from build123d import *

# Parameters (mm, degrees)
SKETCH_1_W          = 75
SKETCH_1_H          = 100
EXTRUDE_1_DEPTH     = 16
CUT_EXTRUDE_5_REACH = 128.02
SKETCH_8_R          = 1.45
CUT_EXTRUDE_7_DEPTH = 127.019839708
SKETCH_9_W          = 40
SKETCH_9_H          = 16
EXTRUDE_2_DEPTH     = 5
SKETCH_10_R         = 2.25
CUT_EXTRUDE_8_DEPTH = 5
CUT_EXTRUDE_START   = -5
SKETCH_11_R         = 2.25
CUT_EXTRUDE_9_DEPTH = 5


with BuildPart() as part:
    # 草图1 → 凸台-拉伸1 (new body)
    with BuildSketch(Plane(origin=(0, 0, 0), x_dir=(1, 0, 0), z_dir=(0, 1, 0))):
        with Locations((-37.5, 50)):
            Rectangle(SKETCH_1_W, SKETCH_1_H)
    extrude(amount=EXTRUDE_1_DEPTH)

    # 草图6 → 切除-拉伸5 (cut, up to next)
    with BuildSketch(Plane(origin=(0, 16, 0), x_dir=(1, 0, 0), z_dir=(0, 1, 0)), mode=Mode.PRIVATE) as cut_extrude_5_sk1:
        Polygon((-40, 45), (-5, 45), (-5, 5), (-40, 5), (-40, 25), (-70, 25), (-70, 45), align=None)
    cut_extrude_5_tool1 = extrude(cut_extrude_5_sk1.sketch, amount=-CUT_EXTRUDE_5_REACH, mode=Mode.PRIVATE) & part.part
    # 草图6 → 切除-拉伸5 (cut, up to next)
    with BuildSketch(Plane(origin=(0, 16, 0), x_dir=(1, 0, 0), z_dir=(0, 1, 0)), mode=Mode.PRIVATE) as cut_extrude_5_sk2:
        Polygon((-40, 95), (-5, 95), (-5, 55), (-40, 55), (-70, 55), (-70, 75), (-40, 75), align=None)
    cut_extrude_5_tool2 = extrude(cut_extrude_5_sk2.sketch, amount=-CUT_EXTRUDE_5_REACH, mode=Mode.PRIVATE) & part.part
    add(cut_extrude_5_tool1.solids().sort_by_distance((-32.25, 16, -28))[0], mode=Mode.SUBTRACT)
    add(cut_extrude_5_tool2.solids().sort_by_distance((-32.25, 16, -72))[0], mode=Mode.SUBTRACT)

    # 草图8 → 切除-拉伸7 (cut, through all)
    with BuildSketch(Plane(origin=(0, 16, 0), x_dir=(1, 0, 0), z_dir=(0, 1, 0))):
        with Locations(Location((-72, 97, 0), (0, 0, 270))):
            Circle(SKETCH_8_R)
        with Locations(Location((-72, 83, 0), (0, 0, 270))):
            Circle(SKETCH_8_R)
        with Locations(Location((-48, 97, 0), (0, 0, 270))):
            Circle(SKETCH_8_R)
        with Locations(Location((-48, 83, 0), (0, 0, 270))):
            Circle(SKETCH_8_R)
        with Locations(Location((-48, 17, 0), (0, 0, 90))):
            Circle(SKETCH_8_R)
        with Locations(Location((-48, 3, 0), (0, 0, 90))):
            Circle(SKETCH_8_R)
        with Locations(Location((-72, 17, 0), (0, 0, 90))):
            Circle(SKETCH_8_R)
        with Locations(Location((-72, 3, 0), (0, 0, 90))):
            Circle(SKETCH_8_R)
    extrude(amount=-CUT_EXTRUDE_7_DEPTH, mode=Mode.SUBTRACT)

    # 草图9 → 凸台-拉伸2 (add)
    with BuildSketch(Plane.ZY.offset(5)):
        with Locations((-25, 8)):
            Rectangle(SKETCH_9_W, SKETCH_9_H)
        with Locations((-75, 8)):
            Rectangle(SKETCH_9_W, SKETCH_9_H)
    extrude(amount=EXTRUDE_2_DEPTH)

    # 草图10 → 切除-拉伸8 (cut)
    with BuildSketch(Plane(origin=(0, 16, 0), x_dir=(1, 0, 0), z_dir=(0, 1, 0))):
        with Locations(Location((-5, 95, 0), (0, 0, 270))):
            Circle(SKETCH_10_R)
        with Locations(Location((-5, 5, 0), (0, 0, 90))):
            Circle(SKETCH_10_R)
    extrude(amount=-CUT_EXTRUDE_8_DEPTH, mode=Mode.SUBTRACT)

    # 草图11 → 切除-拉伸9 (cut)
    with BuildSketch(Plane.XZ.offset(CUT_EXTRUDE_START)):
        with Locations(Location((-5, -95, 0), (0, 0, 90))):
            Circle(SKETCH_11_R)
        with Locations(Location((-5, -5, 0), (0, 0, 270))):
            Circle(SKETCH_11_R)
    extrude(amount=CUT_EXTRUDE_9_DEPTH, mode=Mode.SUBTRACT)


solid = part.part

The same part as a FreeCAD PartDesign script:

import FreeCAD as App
import Part
import Sketcher
from FreeCAD import Vector
Q = App.Units.Quantity

doc = App.newDocument("Part")
body = doc.addObject("PartDesign::Body", "Body")

# Sketch on XZ plane
sketch1 = body.newObject("Sketcher::SketchObject", "Sketch")
sketch1.AttachmentSupport = (doc.getObject("XZ_Plane"), [""])
sketch1.MapMode = "FlatFace"
sketch1.addGeometry(Part.LineSegment(Vector(-75, -100, 0), Vector(-75, 0, 0)), False)
sketch1.addGeometry(Part.LineSegment(Vector(-75, 0, 0), Vector(0, 0, 0)), False)
sketch1.addGeometry(Part.LineSegment(Vector(0, 0, 0), Vector(0, -100, 0)), False)
sketch1.addGeometry(Part.LineSegment(Vector(0, -100, 0), Vector(-75, -100, 0)), False)
sketch1.addConstraint(Sketcher.Constraint("Coincident", 0, 2, 1, 1))
sketch1.addConstraint(Sketcher.Constraint("Coincident", 1, 2, 2, 1))
sketch1.addConstraint(Sketcher.Constraint("Coincident", 2, 2, 3, 1))
sketch1.addConstraint(Sketcher.Constraint("Coincident", 3, 2, 0, 1))
sketch1.addConstraint(Sketcher.Constraint("Vertical", 0))
sketch1.addConstraint(Sketcher.Constraint("Horizontal", 1))
sketch1.addConstraint(Sketcher.Constraint("Vertical", 2))
sketch1.addConstraint(Sketcher.Constraint("Horizontal", 3))
sketch1.addConstraint(Sketcher.Constraint("Coincident", 1, 2, -1, 1))
sketch1.addConstraint(Sketcher.Constraint("DistanceX", 1, 1, 1, 2, Q("75 mm")))
sketch1.addConstraint(Sketcher.Constraint("DistanceY", 0, 1, 0, 2, Q("100 mm")))
pad1 = body.newObject("PartDesign::Pad", "Pad")
pad1.Profile = sketch1
pad1.Length = 16
pad1.Reversed = True

# Sketch on XZ plane
sketch2 = body.newObject("Sketcher::SketchObject", "Sketch001")
sketch2.AttachmentSupport = (doc.getObject("XZ_Plane"), [""])
sketch2.MapMode = "FlatFace"
sketch2.AttachmentOffset = App.Placement(Vector(0, 0, -16), App.Rotation())
sketch2.addGeometry(Part.LineSegment(Vector(-5, -45, 0), Vector(-70, -45, 0)), False)
sketch2.addGeometry(Part.LineSegment(Vector(-70, -45, 0), Vector(-70, -25, 0)), False)
sketch2.addGeometry(Part.LineSegment(Vector(-70, -25, 0), Vector(-40, -25, 0)), False)
sketch2.addGeometry(Part.LineSegment(Vector(-40, -25, 0), Vector(-40, -5, 0)), False)
sketch2.addGeometry(Part.LineSegment(Vector(-40, -5, 0), Vector(-5, -5, 0)), False)
sketch2.addGeometry(Part.LineSegment(Vector(-5, -5, 0), Vector(-5, -45, 0)), False)
sketch2.addConstraint(Sketcher.Constraint("Coincident", 0, 2, 1, 1))
sketch2.addConstraint(Sketcher.Constraint("Coincident", 1, 2, 2, 1))
sketch2.addConstraint(Sketcher.Constraint("Coincident", 2, 2, 3, 1))
sketch2.addConstraint(Sketcher.Constraint("Coincident", 3, 2, 4, 1))
sketch2.addConstraint(Sketcher.Constraint("Coincident", 4, 2, 5, 1))
sketch2.addConstraint(Sketcher.Constraint("Coincident", 5, 2, 0, 1))
sketch2.addConstraint(Sketcher.Constraint("Horizontal", 0))
sketch2.addConstraint(Sketcher.Constraint("Vertical", 1))
sketch2.addConstraint(Sketcher.Constraint("Horizontal", 2))
sketch2.addConstraint(Sketcher.Constraint("Vertical", 3))
sketch2.addConstraint(Sketcher.Constraint("Horizontal", 4))
sketch2.addConstraint(Sketcher.Constraint("Vertical", 5))
sketch2.addConstraint(Sketcher.Constraint("Equal", 1, 3))
sketch2.addConstraint(Sketcher.Constraint("DistanceX", 0, 2, 0, 1, Q("65 mm")))
sketch2.addConstraint(Sketcher.Constraint("DistanceX", 2, 1, 2, 2, Q("30 mm")))
sketch2.addConstraint(Sketcher.Constraint("DistanceY", 1, 1, 1, 2, Q("20 mm")))
sketch2.addConstraint(Sketcher.Constraint("DistanceX", 0, 2, -1, 1, Q("70 mm")))
sketch2.addConstraint(Sketcher.Constraint("DistanceY", 0, 2, -1, 1, Q("45 mm")))
pocket1 = body.newObject("PartDesign::Pocket", "Pocket")
pocket1.Profile = sketch2
pocket1.Type = "UpToFirst"
pocket1.Reversed = True

# Sketch on XZ plane
sketch3 = body.newObject("Sketcher::SketchObject", "Sketch002")
sketch3.AttachmentSupport = (doc.getObject("XZ_Plane"), [""])
sketch3.MapMode = "FlatFace"
sketch3.AttachmentOffset = App.Placement(Vector(0, 0, -16), App.Rotation())
sketch3.addGeometry(Part.LineSegment(Vector(-5, -95, 0), Vector(-40, -95, 0)), False)
sketch3.addGeometry(Part.LineSegment(Vector(-40, -95, 0), Vector(-40, -75, 0)), False)
sketch3.addGeometry(Part.LineSegment(Vector(-40, -75, 0), Vector(-70, -75, 0)), False)
sketch3.addGeometry(Part.LineSegment(Vector(-70, -75, 0), Vector(-70, -55, 0)), False)
sketch3.addGeometry(Part.LineSegment(Vector(-70, -55, 0), Vector(-5, -55, 0)), False)
sketch3.addGeometry(Part.LineSegment(Vector(-5, -55, 0), Vector(-5, -95, 0)), False)
sketch3.addConstraint(Sketcher.Constraint("Coincident", 0, 2, 1, 1))
sketch3.addConstraint(Sketcher.Constraint("Coincident", 1, 2, 2, 1))
sketch3.addConstraint(Sketcher.Constraint("Coincident", 2, 2, 3, 1))
sketch3.addConstraint(Sketcher.Constraint("Coincident", 3, 2, 4, 1))
sketch3.addConstraint(Sketcher.Constraint("Coincident", 4, 2, 5, 1))
sketch3.addConstraint(Sketcher.Constraint("Coincident", 5, 2, 0, 1))
sketch3.addConstraint(Sketcher.Constraint("Horizontal", 0))
sketch3.addConstraint(Sketcher.Constraint("Vertical", 1))
sketch3.addConstraint(Sketcher.Constraint("Horizontal", 2))
sketch3.addConstraint(Sketcher.Constraint("Vertical", 3))
sketch3.addConstraint(Sketcher.Constraint("Horizontal", 4))
sketch3.addConstraint(Sketcher.Constraint("Vertical", 5))
sketch3.addConstraint(Sketcher.Constraint("Equal", 1, 3))
sketch3.addConstraint(Sketcher.Constraint("DistanceX", 0, 2, 0, 1, Q("35 mm")))
sketch3.addConstraint(Sketcher.Constraint("DistanceX", 2, 2, 2, 1, Q("30 mm")))
sketch3.addConstraint(Sketcher.Constraint("DistanceY", 1, 1, 1, 2, Q("20 mm")))
sketch3.addConstraint(Sketcher.Constraint("DistanceX", 0, 2, -1, 1, Q("40 mm")))
sketch3.addConstraint(Sketcher.Constraint("DistanceY", 0, 2, -1, 1, Q("95 mm")))
pocket2 = body.newObject("PartDesign::Pocket", "Pocket001")
pocket2.Profile = sketch3
pocket2.Type = "UpToFirst"
pocket2.Reversed = True

# Sketch on XZ plane
sketch4 = body.newObject("Sketcher::SketchObject", "Sketch003")
sketch4.AttachmentSupport = (doc.getObject("XZ_Plane"), [""])
sketch4.MapMode = "FlatFace"
sketch4.AttachmentOffset = App.Placement(Vector(0, 0, -16), App.Rotation())
sketch4.addGeometry(Part.Circle(Vector(-72, -97, 0), Vector(0, 0, 1), 1.4), False)
sketch4.addGeometry(Part.Circle(Vector(-72, -83, 0), Vector(0, 0, 1), 1.4), False)
sketch4.addGeometry(Part.Circle(Vector(-48, -97, 0), Vector(0, 0, 1), 1.4), False)
sketch4.addGeometry(Part.Circle(Vector(-48, -83, 0), Vector(0, 0, 1), 1.4), False)
sketch4.addGeometry(Part.Circle(Vector(-48, -17, 0), Vector(0, 0, 1), 1.4), False)
sketch4.addGeometry(Part.Circle(Vector(-48, -3, 0), Vector(0, 0, 1), 1.4), False)
sketch4.addGeometry(Part.Circle(Vector(-72, -17, 0), Vector(0, 0, 1), 1.4), False)
sketch4.addGeometry(Part.Circle(Vector(-72, -3, 0), Vector(0, 0, 1), 1.4), False)
sketch4.addConstraint(Sketcher.Constraint("Equal", 0, 1))
sketch4.addConstraint(Sketcher.Constraint("Equal", 1, 2))
sketch4.addConstraint(Sketcher.Constraint("Equal", 2, 3))
sketch4.addConstraint(Sketcher.Constraint("Equal", 3, 4))
sketch4.addConstraint(Sketcher.Constraint("Equal", 4, 5))
sketch4.addConstraint(Sketcher.Constraint("Equal", 5, 6))
sketch4.addConstraint(Sketcher.Constraint("Equal", 6, 7))
sketch4.addConstraint(Sketcher.Constraint("Horizontal", 0, 3, 2, 3))
sketch4.addConstraint(Sketcher.Constraint("Horizontal", 1, 3, 3, 3))
sketch4.addConstraint(Sketcher.Constraint("Horizontal", 4, 3, 6, 3))
sketch4.addConstraint(Sketcher.Constraint("Horizontal", 5, 3, 7, 3))
sketch4.addConstraint(Sketcher.Constraint("Vertical", 0, 3, 1, 3))
sketch4.addConstraint(Sketcher.Constraint("Vertical", 2, 3, 3, 3))
sketch4.addConstraint(Sketcher.Constraint("Vertical", 3, 3, 4, 3))
sketch4.addConstraint(Sketcher.Constraint("Vertical", 4, 3, 5, 3))
sketch4.addConstraint(Sketcher.Constraint("Vertical", 1, 3, 6, 3))
sketch4.addConstraint(Sketcher.Constraint("Vertical", 6, 3, 7, 3))
sketch4.addConstraint(Sketcher.Constraint("Diameter", 0, Q("2.9 mm")))
sketch4.addConstraint(Sketcher.Constraint("DistanceX", 0, 3, -1, 1, Q("72 mm")))
sketch4.addConstraint(Sketcher.Constraint("DistanceY", 0, 3, -1, 1, Q("97 mm")))
sketch4.addConstraint(Sketcher.Constraint("DistanceY", 1, 3, -1, 1, Q("83 mm")))
sketch4.addConstraint(Sketcher.Constraint("DistanceX", 2, 3, -1, 1, Q("48 mm")))
sketch4.addConstraint(Sketcher.Constraint("DistanceY", 4, 3, -1, 1, Q("17 mm")))
sketch4.addConstraint(Sketcher.Constraint("DistanceY", 5, 3, -1, 1, Q("3 mm")))
pocket3 = body.newObject("PartDesign::Pocket", "Pocket002")
pocket3.Profile = sketch4
pocket3.Type = "ThroughAll"
pocket3.Reversed = True

# Sketch on YZ plane
sketch5 = body.newObject("Sketcher::SketchObject", "Sketch004")
sketch5.AttachmentSupport = (doc.getObject("YZ_Plane"), [""])
sketch5.MapMode = "FlatFace"
sketch5.AttachmentOffset = App.Placement(Vector(0, 0, -5), App.Rotation())
sketch5.addGeometry(Part.LineSegment(Vector(16, -45, 0), Vector(0, -45, 0)), False)
sketch5.addGeometry(Part.LineSegment(Vector(0, -45, 0), Vector(0, -5, 0)), False)
sketch5.addGeometry(Part.LineSegment(Vector(0, -5, 0), Vector(16, -5, 0)), False)
sketch5.addGeometry(Part.LineSegment(Vector(16, -5, 0), Vector(16, -45, 0)), False)
sketch5.addGeometry(Part.LineSegment(Vector(16, -95, 0), Vector(0, -95, 0)), False)
sketch5.addGeometry(Part.LineSegment(Vector(0, -95, 0), Vector(0, -55, 0)), False)
sketch5.addGeometry(Part.LineSegment(Vector(0, -55, 0), Vector(16, -55, 0)), False)
sketch5.addGeometry(Part.LineSegment(Vector(16, -55, 0), Vector(16, -95, 0)), False)
sketch5.addConstraint(Sketcher.Constraint("Coincident", 0, 2, 1, 1))
sketch5.addConstraint(Sketcher.Constraint("Coincident", 1, 2, 2, 1))
sketch5.addConstraint(Sketcher.Constraint("Coincident", 2, 2, 3, 1))
sketch5.addConstraint(Sketcher.Constraint("Coincident", 3, 2, 0, 1))
sketch5.addConstraint(Sketcher.Constraint("Coincident", 4, 2, 5, 1))
sketch5.addConstraint(Sketcher.Constraint("Coincident", 5, 2, 6, 1))
sketch5.addConstraint(Sketcher.Constraint("Coincident", 6, 2, 7, 1))
sketch5.addConstraint(Sketcher.Constraint("Coincident", 7, 2, 4, 1))
sketch5.addConstraint(Sketcher.Constraint("Horizontal", 0))
sketch5.addConstraint(Sketcher.Constraint("Vertical", 1))
sketch5.addConstraint(Sketcher.Constraint("Horizontal", 2))
sketch5.addConstraint(Sketcher.Constraint("Vertical", 3))
sketch5.addConstraint(Sketcher.Constraint("Horizontal", 4))
sketch5.addConstraint(Sketcher.Constraint("Vertical", 5))
sketch5.addConstraint(Sketcher.Constraint("Horizontal", 6))
sketch5.addConstraint(Sketcher.Constraint("Vertical", 7))
sketch5.addConstraint(Sketcher.Constraint("PointOnObject", 0, 2, -2))
sketch5.addConstraint(Sketcher.Constraint("PointOnObject", 4, 2, -2))
sketch5.addConstraint(Sketcher.Constraint("Vertical", 3, 2, 6, 2))
sketch5.addConstraint(Sketcher.Constraint("Equal", 3, 5))
sketch5.addConstraint(Sketcher.Constraint("DistanceX", 0, 2, 0, 1, Q("16 mm")))
sketch5.addConstraint(Sketcher.Constraint("DistanceY", 1, 1, 1, 2, Q("40 mm")))
sketch5.addConstraint(Sketcher.Constraint("DistanceY", 0, 2, -1, 1, Q("45 mm")))
sketch5.addConstraint(Sketcher.Constraint("DistanceY", 4, 2, -1, 1, Q("95 mm")))
pad2 = body.newObject("PartDesign::Pad", "Pad001")
pad2.Profile = sketch5
pad2.Length = 5
pad2.Reversed = True

# Sketch on XZ plane
sketch6 = body.newObject("Sketcher::SketchObject", "Sketch005")
sketch6.AttachmentSupport = (doc.getObject("XZ_Plane"), [""])
sketch6.MapMode = "FlatFace"
sketch6.AttachmentOffset = App.Placement(Vector(0, 0, -16), App.Rotation())
sketch6.addGeometry(Part.Circle(Vector(-5, -95, 0), Vector(0, 0, 1), 2.2), False)
sketch6.addGeometry(Part.Circle(Vector(-5, -5, 0), Vector(0, 0, 1), 2.2), False)
sketch6.addConstraint(Sketcher.Constraint("Equal", 0, 1))
sketch6.addConstraint(Sketcher.Constraint("Vertical", 0, 3, 1, 3))
sketch6.addConstraint(Sketcher.Constraint("Diameter", 0, Q("4.5 mm")))
sketch6.addConstraint(Sketcher.Constraint("DistanceX", 0, 3, -1, 1, Q("5 mm")))
sketch6.addConstraint(Sketcher.Constraint("DistanceY", 0, 3, -1, 1, Q("95 mm")))
sketch6.addConstraint(Sketcher.Constraint("DistanceY", 1, 3, -1, 1, Q("5 mm")))
pocket4 = body.newObject("PartDesign::Pocket", "Pocket003")
pocket4.Profile = sketch6
pocket4.Length = 5
pocket4.Reversed = True

# Sketch on XZ plane
sketch7 = body.newObject("Sketcher::SketchObject", "Sketch006")
sketch7.AttachmentSupport = (doc.getObject("XZ_Plane"), [""])
sketch7.MapMode = "FlatFace"
sketch7.AttachmentOffset = App.Placement(Vector(0, 0, -5), App.Rotation())
sketch7.addGeometry(Part.Circle(Vector(-5, -95, 0), Vector(0, 0, 1), 2.2), False)
sketch7.addGeometry(Part.Circle(Vector(-5, -5, 0), Vector(0, 0, 1), 2.2), False)
sketch7.addConstraint(Sketcher.Constraint("Equal", 0, 1))
sketch7.addConstraint(Sketcher.Constraint("Vertical", 0, 3, 1, 3))
sketch7.addConstraint(Sketcher.Constraint("Diameter", 0, Q("4.5 mm")))
sketch7.addConstraint(Sketcher.Constraint("DistanceX", 0, 3, -1, 1, Q("5 mm")))
sketch7.addConstraint(Sketcher.Constraint("DistanceY", 0, 3, -1, 1, Q("95 mm")))
sketch7.addConstraint(Sketcher.Constraint("DistanceY", 1, 3, -1, 1, Q("5 mm")))
pocket5 = body.newObject("PartDesign::Pocket", "Pocket004")
pocket5.Profile = sketch7
pocket5.Length = 5
pocket5.Reversed = True

doc.recompute()
